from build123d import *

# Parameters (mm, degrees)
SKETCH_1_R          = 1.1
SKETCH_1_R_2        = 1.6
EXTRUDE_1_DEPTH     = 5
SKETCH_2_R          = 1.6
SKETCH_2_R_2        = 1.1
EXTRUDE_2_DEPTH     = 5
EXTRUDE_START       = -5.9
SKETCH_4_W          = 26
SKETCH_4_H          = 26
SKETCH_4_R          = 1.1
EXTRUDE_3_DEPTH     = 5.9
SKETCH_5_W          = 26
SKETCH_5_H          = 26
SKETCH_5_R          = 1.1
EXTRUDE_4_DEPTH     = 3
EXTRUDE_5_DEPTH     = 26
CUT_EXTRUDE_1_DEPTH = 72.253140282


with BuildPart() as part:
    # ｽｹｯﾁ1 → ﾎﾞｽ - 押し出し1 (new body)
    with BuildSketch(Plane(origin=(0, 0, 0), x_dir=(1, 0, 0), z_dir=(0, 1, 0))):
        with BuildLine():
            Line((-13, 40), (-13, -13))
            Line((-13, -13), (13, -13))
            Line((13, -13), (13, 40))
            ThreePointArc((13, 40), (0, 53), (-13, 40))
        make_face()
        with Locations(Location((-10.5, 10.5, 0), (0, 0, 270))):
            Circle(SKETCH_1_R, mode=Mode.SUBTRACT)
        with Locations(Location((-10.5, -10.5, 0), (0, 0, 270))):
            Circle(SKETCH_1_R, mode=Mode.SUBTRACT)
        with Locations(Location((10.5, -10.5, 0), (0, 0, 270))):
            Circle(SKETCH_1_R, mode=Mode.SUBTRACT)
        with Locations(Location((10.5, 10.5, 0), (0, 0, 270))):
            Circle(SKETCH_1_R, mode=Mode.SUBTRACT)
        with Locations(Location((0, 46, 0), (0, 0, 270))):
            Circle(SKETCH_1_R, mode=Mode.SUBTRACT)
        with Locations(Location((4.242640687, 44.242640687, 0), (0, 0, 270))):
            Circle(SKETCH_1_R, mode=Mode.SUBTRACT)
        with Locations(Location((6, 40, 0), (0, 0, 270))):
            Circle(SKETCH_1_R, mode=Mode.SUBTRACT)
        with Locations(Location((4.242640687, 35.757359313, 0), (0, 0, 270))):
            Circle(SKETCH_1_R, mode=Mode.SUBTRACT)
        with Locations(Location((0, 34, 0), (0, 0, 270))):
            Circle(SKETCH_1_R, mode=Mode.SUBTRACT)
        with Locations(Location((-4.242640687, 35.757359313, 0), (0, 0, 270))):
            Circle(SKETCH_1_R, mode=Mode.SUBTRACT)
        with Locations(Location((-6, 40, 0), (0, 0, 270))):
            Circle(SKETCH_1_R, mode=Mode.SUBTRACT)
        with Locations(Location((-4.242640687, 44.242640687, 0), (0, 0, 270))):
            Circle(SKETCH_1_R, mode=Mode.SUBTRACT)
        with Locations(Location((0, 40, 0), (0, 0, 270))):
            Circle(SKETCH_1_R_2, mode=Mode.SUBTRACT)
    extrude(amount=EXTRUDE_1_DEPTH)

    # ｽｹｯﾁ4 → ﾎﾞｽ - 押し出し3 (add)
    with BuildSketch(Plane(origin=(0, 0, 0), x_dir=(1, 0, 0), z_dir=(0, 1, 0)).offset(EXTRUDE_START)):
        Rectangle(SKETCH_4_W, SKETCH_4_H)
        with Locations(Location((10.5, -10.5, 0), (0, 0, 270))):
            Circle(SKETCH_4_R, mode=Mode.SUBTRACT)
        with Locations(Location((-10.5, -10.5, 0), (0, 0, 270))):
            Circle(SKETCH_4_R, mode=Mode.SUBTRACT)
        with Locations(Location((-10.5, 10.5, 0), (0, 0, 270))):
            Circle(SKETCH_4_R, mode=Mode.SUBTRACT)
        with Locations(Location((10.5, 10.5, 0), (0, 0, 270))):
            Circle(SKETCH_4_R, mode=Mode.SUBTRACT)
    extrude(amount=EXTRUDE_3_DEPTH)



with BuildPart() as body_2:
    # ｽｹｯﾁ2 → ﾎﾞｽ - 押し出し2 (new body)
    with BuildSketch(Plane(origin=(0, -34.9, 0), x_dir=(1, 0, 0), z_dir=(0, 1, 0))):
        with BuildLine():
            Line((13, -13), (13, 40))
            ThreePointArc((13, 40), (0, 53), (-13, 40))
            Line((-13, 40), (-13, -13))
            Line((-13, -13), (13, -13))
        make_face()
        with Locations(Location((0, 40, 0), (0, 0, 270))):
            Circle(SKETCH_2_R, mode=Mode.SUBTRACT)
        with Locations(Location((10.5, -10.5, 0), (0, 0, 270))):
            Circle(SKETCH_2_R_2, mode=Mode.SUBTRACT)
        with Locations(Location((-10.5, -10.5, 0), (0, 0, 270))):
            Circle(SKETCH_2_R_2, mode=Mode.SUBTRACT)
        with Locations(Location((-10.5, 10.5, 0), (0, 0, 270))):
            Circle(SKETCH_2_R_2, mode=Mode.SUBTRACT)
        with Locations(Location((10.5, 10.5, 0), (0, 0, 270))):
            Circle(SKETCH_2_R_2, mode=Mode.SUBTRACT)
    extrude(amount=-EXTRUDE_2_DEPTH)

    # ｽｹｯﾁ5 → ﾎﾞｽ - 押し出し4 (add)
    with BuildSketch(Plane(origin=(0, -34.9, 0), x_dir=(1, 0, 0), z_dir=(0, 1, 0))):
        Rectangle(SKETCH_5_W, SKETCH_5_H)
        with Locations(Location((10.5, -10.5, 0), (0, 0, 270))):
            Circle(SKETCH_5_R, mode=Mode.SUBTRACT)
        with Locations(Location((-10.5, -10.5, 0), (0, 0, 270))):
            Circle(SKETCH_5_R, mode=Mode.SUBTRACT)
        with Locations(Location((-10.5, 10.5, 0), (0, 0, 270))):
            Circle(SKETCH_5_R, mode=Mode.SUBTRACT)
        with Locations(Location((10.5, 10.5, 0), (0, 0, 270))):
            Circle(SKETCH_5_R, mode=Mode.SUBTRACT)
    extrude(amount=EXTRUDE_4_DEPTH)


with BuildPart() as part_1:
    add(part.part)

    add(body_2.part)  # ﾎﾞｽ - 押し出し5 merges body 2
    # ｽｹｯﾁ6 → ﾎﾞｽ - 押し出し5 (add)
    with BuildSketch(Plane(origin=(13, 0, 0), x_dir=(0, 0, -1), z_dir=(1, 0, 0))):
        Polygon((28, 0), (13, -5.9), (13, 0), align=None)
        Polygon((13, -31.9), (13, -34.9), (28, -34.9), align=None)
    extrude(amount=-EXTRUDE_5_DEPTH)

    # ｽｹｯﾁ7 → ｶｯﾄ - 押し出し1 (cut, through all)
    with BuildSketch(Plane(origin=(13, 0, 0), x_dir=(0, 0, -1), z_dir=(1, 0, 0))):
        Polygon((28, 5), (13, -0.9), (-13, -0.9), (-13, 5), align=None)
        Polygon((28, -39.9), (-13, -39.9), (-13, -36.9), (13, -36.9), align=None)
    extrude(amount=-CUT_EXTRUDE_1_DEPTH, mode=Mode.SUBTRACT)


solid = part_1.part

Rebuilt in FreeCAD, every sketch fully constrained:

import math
import FreeCAD as App
import Part
import Sketcher

V = App.Vector

doc = App.newDocument("Part")
body = doc.addObject("PartDesign::Body", "Body")

# Sketch on XZ plane
sketch1 = doc.addObject("Sketcher::SketchObject", "Sketch")
body.addObject(sketch1)
sketch1.AttachmentSupport = (doc.XZ_Plane, [""])
sketch1.MapMode = "FlatFace"
sketch1.addGeometry([
    Part.LineSegment(V(-13, -40, 0), V(-13, 13, 0)),  # 0
    Part.LineSegment(V(-13, 13, 0), V(13, 13, 0)),  # 1
    Part.LineSegment(V(13, 13, 0), V(13, -40, 0)),  # 2
    Part.ArcOfCircle(Part.Circle(V(0, -40, 0), V(0, 0, 1), 13), math.radians(180), math.radians(360)),  # 3
    Part.Circle(V(-10.5, 10.5, 0), V(0, 0, 1), 1.1),  # 4
    Part.Circle(V(-10.5, -10.5, 0), V(0, 0, 1), 1.1),  # 5
    Part.Circle(V(10.5, 10.5, 0), V(0, 0, 1), 1.1),  # 6
    Part.Circle(V(10.5, -10.5, 0), V(0, 0, 1), 1.1),  # 7
    Part.Circle(V(-6, -40, 0), V(0, 0, 1), 1.1),  # 8
    Part.Circle(V(-4.2, -35.8, 0), V(0, 0, 1), 1.1),  # 9
    Part.Circle(V(-4.2, -44.2, 0), V(0, 0, 1), 1.1),  # 10
    Part.Circle(V(0, -34, 0), V(0, 0, 1), 1.1),  # 11
    Part.Circle(V(4.2, -35.8, 0), V(0, 0, 1), 1.1),  # 12
    Part.Circle(V(0, -40, 0), V(0, 0, 1), 1.6),  # 13
    Part.Circle(V(0, -46, 0), V(0, 0, 1), 1.1),  # 14
    Part.Circle(V(4.2, -44.2, 0), V(0, 0, 1), 1.1),  # 15
    Part.Circle(V(6, -40, 0), V(0, 0, 1), 1.1),  # 16
], False)
sketch1.addConstraint([
    Sketcher.Constraint("Coincident", 0, 2, 1, 1),
    Sketcher.Constraint("Coincident", 1, 2, 2, 1),
    Sketcher.Constraint("Tangent", 2, 2, 3, 2),
    Sketcher.Constraint("Tangent", 3, 1, 0, 1),
    Sketcher.Constraint("Vertical", 0),
    Sketcher.Constraint("Horizontal", 1),
    Sketcher.Constraint("Vertical", 2),
    Sketcher.Constraint("Coincident", 13, 3, 3, 3),
    Sketcher.Constraint("Equal", 4, 5),
    Sketcher.Constraint("Equal", 5, 6),
    Sketcher.Constraint("Equal", 6, 7),
    Sketcher.Constraint("Equal", 7, 8),
    Sketcher.Constraint("Equal", 8, 9),
    Sketcher.Constraint("Equal", 9, 10),
    Sketcher.Constraint("Equal", 10, 11),
    Sketcher.Constraint("Equal", 11, 12),
    Sketcher.Constraint("Equal", 12, 14),
    Sketcher.Constraint("Equal", 14, 15),
    Sketcher.Constraint("Equal", 15, 16),
    Sketcher.Constraint("Symmetric", 5, 3, 6, 3, -1, 1),
    Sketcher.Constraint("Symmetric", 4, 3, 7, 3, -1, 1),
    Sketcher.Constraint("Symmetric", 4, 3, 6, 3, -2),
    Sketcher.Constraint("Symmetric", 9, 3, 12, 3, -2),
    Sketcher.Constraint("Symmetric", 10, 3, 15, 3, -2),
    Sketcher.Constraint("Symmetric", 8, 3, 16, 3, -2),
    Sketcher.Constraint("PointOnObject", 3, 3, -2),
    Sketcher.Constraint("PointOnObject", 11, 3, -2),
    Sketcher.Constraint("PointOnObject", 14, 3, -2),
    Sketcher.Constraint("Horizontal", 3, 3, 8, 3),
    Sketcher.Constraint("Vertical", 9, 3, 10, 3),
    Sketcher.Constraint("Radius", 3, 13.0),
    Sketcher.Constraint("Diameter", 4, 2.2),
    Sketcher.Constraint("Diameter", 13, 3.2),
    Sketcher.Constraint("DistanceY", 0, 1, 0, 2, 53.0),
    Sketcher.Constraint("DistanceY", 3, 3, -1, 1, 40.0),
    Sketcher.Constraint("DistanceX", 8, 3, -1, 1, 6.0),
    Sketcher.Constraint("DistanceY", 11, 3, -1, 1, 34.0),
    Sketcher.Constraint("DistanceY", 14, 3, -1, 1, 46.0),
    Sketcher.Constraint("DistanceY", 5, 3, 4, 3, 21.0),
    Sketcher.Constraint("DistanceX", 4, 3, 6, 3, 21.0),
    Sketcher.Constraint("DistanceX", 9, 3, -1, 1, 4.242641),
    Sketcher.Constraint("DistanceY", 9, 3, -1, 1, 35.757359),
    Sketcher.Constraint("DistanceY", 10, 3, -1, 1, 44.242641),
])
pad1 = doc.addObject("PartDesign::Pad", "Pad")
body.addObject(pad1)
pad1.Profile = sketch1
pad1.Length = 5
pad1.Reversed = True

# Sketch on XZ plane
sketch2 = doc.addObject("Sketcher::SketchObject", "Sketch001")
body.addObject(sketch2)
sketch2.AttachmentSupport = (doc.XZ_Plane, [""])
sketch2.MapMode = "FlatFace"
sketch2.AttachmentOffset = App.Placement(V(0, 0, 5.9), App.Rotation())
sketch2.addGeometry([
    Part.LineSegment(V(-13, -13, 0), V(-13, 13, 0)),  # 0
    Part.LineSegment(V(-13, 13, 0), V(13, 13, 0)),  # 1
    Part.LineSegment(V(13, 13, 0), V(13, -13, 0)),  # 2
    Part.LineSegment(V(13, -13, 0), V(-13, -13, 0)),  # 3
    Part.Circle(V(-10.5, 10.5, 0), V(0, 0, 1), 1.1),  # 4
    Part.Circle(V(10.5, 10.5, 0), V(0, 0, 1), 1.1),  # 5
    Part.Circle(V(-10.5, -10.5, 0), V(0, 0, 1), 1.1),  # 6
    Part.Circle(V(10.5, -10.5, 0), V(0, 0, 1), 1.1),  # 7
], False)
sketch2.addConstraint([
    Sketcher.Constraint("Coincident", 0, 2, 1, 1),
    Sketcher.Constraint("Coincident", 1, 2, 2, 1),
    Sketcher.Constraint("Coincident", 2, 2, 3, 1),
    Sketcher.Constraint("Coincident", 3, 2, 0, 1),
    Sketcher.Constraint("Vertical", 0),
    Sketcher.Constraint("Horizontal", 1),
    Sketcher.Constraint("Vertical", 2),
    Sketcher.Constraint("Horizontal", 3),
    Sketcher.Constraint("Equal", 4, 5),
    Sketcher.Constraint("Equal", 5, 6),
    Sketcher.Constraint("Equal", 6, 7),
    Sketcher.Constraint("Symmetric", 5, 3, 6, 3, -1, 1),
    Sketcher.Constraint("Symmetric", 4, 3, 7, 3, -1, 1),
    Sketcher.Constraint("Symmetric", 0, 2, 2, 2, -1, 1),
    Sketcher.Constraint("Symmetric", 4, 3, 5, 3, -2),
    Sketcher.Constraint("Equal", 3, 0),
    Sketcher.Constraint("Diameter", 4, 2.2),
    Sketcher.Constraint("DistanceX", 1, 1, 1, 2, 26.0),
    Sketcher.Constraint("DistanceX", 4, 3, 5, 3, 21.0),
    Sketcher.Constraint("DistanceY", 6, 3, 4, 3, 21.0),
])
pad2 = doc.addObject("PartDesign::Pad", "Pad001")
body.addObject(pad2)
pad2.Profile = sketch2
pad2.Length = 5.9
pad2.Reversed = True
body2 = doc.addObject("PartDesign::Body", "Body001")

# Sketch on XZ plane
sketch3 = doc.addObject("Sketcher::SketchObject", "Sketch002")
body2.addObject(sketch3)
sketch3.AttachmentSupport = (doc.getObject("XZ_Plane001"), [""])
sketch3.MapMode = "FlatFace"
sketch3.AttachmentOffset = App.Placement(V(0, 0, 34.9), App.Rotation())
sketch3.addGeometry([
    Part.LineSegment(V(13, 13, 0), V(13, -40, 0)),  # 0
    Part.ArcOfCircle(Part.Circle(V(0, -40, 0), V(0, 0, 1), 13), math.radians(180), math.radians(360)),  # 1
    Part.LineSegment(V(-13, -40, 0), V(-13, 13, 0)),  # 2
    Part.LineSegment(V(-13, 13, 0), V(13, 13, 0)),  # 3
    Part.Circle(V(-10.5, 10.5, 0), V(0, 0, 1), 1.1),  # 4
    Part.Circle(V(-10.5, -10.5, 0), V(0, 0, 1), 1.1),  # 5
    Part.Circle(V(10.5, 10.5, 0), V(0, 0, 1), 1.1),  # 6
    Part.Circle(V(10.5, -10.5, 0), V(0, 0, 1), 1.1),  # 7
    Part.Circle(V(0, -40, 0), V(0, 0, 1), 1.6),  # 8
], False)
sketch3.addConstraint([
    Sketcher.Constraint("Tangent", 0, 2, 1, 2),
    Sketcher.Constraint("Tangent", 1, 1, 2, 1),
    Sketcher.Constraint("Coincident", 2, 2, 3, 1),
    Sketcher.Constraint("Coincident", 3, 2, 0, 1),
    Sketcher.Constraint("Vertical", 0),
    Sketcher.Constraint("Vertical", 2),
    Sketcher.Constraint("Horizontal", 3),
    Sketcher.Constraint("Coincident", 8, 3, 1, 3),
    Sketcher.Constraint("Equal", 4, 5),
    Sketcher.Constraint("Equal", 5, 6),
    Sketcher.Constraint("Equal", 6, 7),
    Sketcher.Constraint("Symmetric", 5, 3, 6, 3, -1, 1),
    Sketcher.Constraint("Symmetric", 4, 3, 7, 3, -1, 1),
    Sketcher.Constraint("Symmetric", 4, 3, 6, 3, -2),
    Sketcher.Constraint("PointOnObject", 1, 3, -2),
    Sketcher.Constraint("Radius", 1, 13.0),
    Sketcher.Constraint("Diameter", 4, 2.2),
    Sketcher.Constraint("Diameter", 8, 3.2),
    Sketcher.Constraint("DistanceY", 0, 2, 0, 1, 53.0),
    Sketcher.Constraint("DistanceY", 1, 3, -1, 1, 40.0),
    Sketcher.Constraint("DistanceY", 5, 3, 4, 3, 21.0),
    Sketcher.Constraint("DistanceX", 4, 3, 6, 3, 21.0),
])
pad3 = doc.addObject("PartDesign::Pad", "Pad002")
body2.addObject(pad3)
pad3.Profile = sketch3
pad3.Length = 5

# Sketch on XZ plane
sketch4 = doc.addObject("Sketcher::SketchObject", "Sketch003")
body2.addObject(sketch4)
sketch4.AttachmentSupport = (doc.getObject("XZ_Plane001"), [""])
sketch4.MapMode = "FlatFace"
sketch4.AttachmentOffset = App.Placement(V(0, 0, 34.9), App.Rotation())
sketch4.addGeometry([
    Part.LineSegment(V(-13, -13, 0), V(-13, 13, 0)),  # 0
    Part.LineSegment(V(-13, 13, 0), V(13, 13, 0)),  # 1
    Part.LineSegment(V(13, 13, 0), V(13, -13, 0)),  # 2
    Part.LineSegment(V(13, -13, 0), V(-13, -13, 0)),  # 3
    Part.Circle(V(-10.5, 10.5, 0), V(0, 0, 1), 1.1),  # 4
    Part.Circle(V(10.5, 10.5, 0), V(0, 0, 1), 1.1),  # 5
    Part.Circle(V(-10.5, -10.5, 0), V(0, 0, 1), 1.1),  # 6
    Part.Circle(V(10.5, -10.5, 0), V(0, 0, 1), 1.1),  # 7
], False)
sketch4.addConstraint([
    Sketcher.Constraint("Coincident", 0, 2, 1, 1),
    Sketcher.Constraint("Coincident", 1, 2, 2, 1),
    Sketcher.Constraint("Coincident", 2, 2, 3, 1),
    Sketcher.Constraint("Coincident", 3, 2, 0, 1),
    Sketcher.Constraint("Vertical", 0),
    Sketcher.Constraint("Horizontal", 1),
    Sketcher.Constraint("Vertical", 2),
    Sketcher.Constraint("Horizontal", 3),
    Sketcher.Constraint("Equal", 4, 5),
    Sketcher.Constraint("Equal", 5, 6),
    Sketcher.Constraint("Equal", 6, 7),
    Sketcher.Constraint("Symmetric", 5, 3, 6, 3, -1, 1),
    Sketcher.Constraint("Symmetric", 4, 3, 7, 3, -1, 1),
    Sketcher.Constraint("Symmetric", 0, 2, 2, 2, -1, 1),
    Sketcher.Constraint("Symmetric", 4, 3, 5, 3, -2),
    Sketcher.Constraint("Equal", 3, 0),
    Sketcher.Constraint("Diameter", 4, 2.2),
    Sketcher.Constraint("DistanceX", 1, 1, 1, 2, 26.0),
    Sketcher.Constraint("DistanceX", 4, 3, 5, 3, 21.0),
    Sketcher.Constraint("DistanceY", 6, 3, 4, 3, 21.0),
])
pad4 = doc.addObject("PartDesign::Pad", "Pad003")
body2.addObject(pad4)
pad4.Profile = sketch4
pad4.Length = 3
pad4.Reversed = True
body.AllowCompound = True
doc.recompute()

boolean = doc.addObject("PartDesign::Boolean", "Boolean")
body.addObject(boolean)
boolean.Type = "Fuse"
boolean.addObjects([body2])

# Sketch on YZ plane
sketch5 = doc.addObject("Sketcher::SketchObject", "Sketch004")
body.addObject(sketch5)
sketch5.AttachmentSupport = (doc.YZ_Plane, [""])
sketch5.MapMode = "FlatFace"
sketch5.AttachmentOffset = App.Placement(V(0, 0, 13), App.Rotation())
sketch5.addGeometry([
    Part.LineSegment(V(-5.9, -13, 0), V(0, -28, 0)),  # 0
    Part.LineSegment(V(0, -28, 0), V(0, -13, 0)),  # 1
    Part.LineSegment(V(0, -13, 0), V(-5.9, -13, 0)),  # 2
    Part.LineSegment(V(-31.9, -13, 0), V(-34.9, -13, 0)),  # 3
    Part.LineSegment(V(-34.9, -13, 0), V(-34.9, -28, 0)),  # 4
    Part.LineSegment(V(-34.9, -28, 0), V(-31.9, -13, 0)),  # 5
], False)
sketch5.addConstraint([
    Sketcher.Constraint("Coincident", 0, 2, 1, 1),
    Sketcher.Constraint("Coincident", 1, 2, 2, 1),
    Sketcher.Constraint("Coincident", 2, 2, 0, 1),
    Sketcher.Constraint("Coincident", 3, 2, 4, 1),
    Sketcher.Constraint("Coincident", 4, 2, 5, 1),
    Sketcher.Constraint("Coincident", 5, 2, 3, 1),
    Sketcher.Constraint("Vertical", 1),
    Sketcher.Constraint("Horizontal", 2),
    Sketcher.Constraint("Horizontal", 3),
    Sketcher.Constraint("Vertical", 4),
    Sketcher.Constraint("PointOnObject", 0, 2, -2),
    Sketcher.Constraint("Horizontal", 2, 2, 3, 2),
    Sketcher.Constraint("Horizontal", 0, 2, 4, 2),
    Sketcher.Constraint("DistanceX", 3, 2, 3, 1, 3.0),
    Sketcher.Constraint("DistanceY", 1, 1, 1, 2, 15.0),
    Sketcher.Constraint("DistanceX", 2, 2, 2, 1, 5.9),
    Sketcher.Constraint("DistanceY", 0, 2, -1, 1, 28.0),
    Sketcher.Constraint("DistanceX", 3, 2, 2, 2, 29.0),
])
pad5 = doc.addObject("PartDesign::Pad", "Pad004")
body.addObject(pad5)
pad5.Profile = sketch5
pad5.Length = 26
pad5.Reversed = True

# Sketch on YZ plane
sketch6 = doc.addObject("Sketcher::SketchObject", "Sketch005")
body.addObject(sketch6)
sketch6.AttachmentSupport = (doc.YZ_Plane, [""])
sketch6.MapMode = "FlatFace"
sketch6.AttachmentOffset = App.Placement(V(0, 0, 13), App.Rotation())
sketch6.addGeometry([
    Part.LineSegment(V(-0.9, -13, 0), V(5, -28, 0)),  # 0
    Part.LineSegment(V(5, -28, 0), V(5, 13, 0)),  # 1
    Part.LineSegment(V(5, 13, 0), V(-0.9, 13, 0)),  # 2
    Part.LineSegment(V(-0.9, 13, 0), V(-0.9, -13, 0)),  # 3
    Part.LineSegment(V(-39.9, 13, 0), V(-39.9, -28, 0)),  # 4
    Part.LineSegment(V(-39.9, -28, 0), V(-36.9, -13, 0)),  # 5
    Part.LineSegment(V(-36.9, -13, 0), V(-36.9, 13, 0)),  # 6
    Part.LineSegment(V(-36.9, 13, 0), V(-39.9, 13, 0)),  # 7
], False)
sketch6.addConstraint([
    Sketcher.Constraint("Coincident", 0, 2, 1, 1),
    Sketcher.Constraint("Coincident", 1, 2, 2, 1),
    Sketcher.Constraint("Coincident", 2, 2, 3, 1),
    Sketcher.Constraint("Coincident", 3, 2, 0, 1),
    Sketcher.Constraint("Coincident", 4, 2, 5, 1),
    Sketcher.Constraint("Coincident", 5, 2, 6, 1),
    Sketcher.Constraint("Coincident", 6, 2, 7, 1),
    Sketcher.Constraint("Coincident", 7, 2, 4, 1),
    Sketcher.Constraint("Vertical", 1),
    Sketcher.Constraint("Horizontal", 2),
    Sketcher.Constraint("Vertical", 3),
    Sketcher.Constraint("Vertical", 4),
    Sketcher.Constraint("Vertical", 6),
    Sketcher.Constraint("Horizontal", 7),
    Sketcher.Constraint("Horizontal", 0, 2, 4, 2),
    Sketcher.Constraint("Horizontal", 3, 2, 5, 2),
    Sketcher.Constraint("Horizontal", 2, 2, 6, 2),
    Sketcher.Constraint("DistanceX", 7, 2, 7, 1, 3.0),
    Sketcher.Constraint("DistanceY", 1, 1, 1, 2, 41.0),
    Sketcher.Constraint("DistanceY", 3, 2, 3, 1, 26.0),
    Sketcher.Constraint("DistanceX", 2, 2, 2, 1, 5.9),
    Sketcher.Constraint("DistanceX", -1, 1, 0, 2, 5.0),
    Sketcher.Constraint("DistanceY", 0, 2, -1, 1, 28.0),
    Sketcher.Constraint("DistanceX", 4, 2, 3, 2, 39.0),
])
pocket1 = doc.addObject("PartDesign::Pocket", "Pocket")
body.addObject(pocket1)
pocket1.Profile = sketch6
pocket1.Type = "ThroughAll"

doc.recompute()
